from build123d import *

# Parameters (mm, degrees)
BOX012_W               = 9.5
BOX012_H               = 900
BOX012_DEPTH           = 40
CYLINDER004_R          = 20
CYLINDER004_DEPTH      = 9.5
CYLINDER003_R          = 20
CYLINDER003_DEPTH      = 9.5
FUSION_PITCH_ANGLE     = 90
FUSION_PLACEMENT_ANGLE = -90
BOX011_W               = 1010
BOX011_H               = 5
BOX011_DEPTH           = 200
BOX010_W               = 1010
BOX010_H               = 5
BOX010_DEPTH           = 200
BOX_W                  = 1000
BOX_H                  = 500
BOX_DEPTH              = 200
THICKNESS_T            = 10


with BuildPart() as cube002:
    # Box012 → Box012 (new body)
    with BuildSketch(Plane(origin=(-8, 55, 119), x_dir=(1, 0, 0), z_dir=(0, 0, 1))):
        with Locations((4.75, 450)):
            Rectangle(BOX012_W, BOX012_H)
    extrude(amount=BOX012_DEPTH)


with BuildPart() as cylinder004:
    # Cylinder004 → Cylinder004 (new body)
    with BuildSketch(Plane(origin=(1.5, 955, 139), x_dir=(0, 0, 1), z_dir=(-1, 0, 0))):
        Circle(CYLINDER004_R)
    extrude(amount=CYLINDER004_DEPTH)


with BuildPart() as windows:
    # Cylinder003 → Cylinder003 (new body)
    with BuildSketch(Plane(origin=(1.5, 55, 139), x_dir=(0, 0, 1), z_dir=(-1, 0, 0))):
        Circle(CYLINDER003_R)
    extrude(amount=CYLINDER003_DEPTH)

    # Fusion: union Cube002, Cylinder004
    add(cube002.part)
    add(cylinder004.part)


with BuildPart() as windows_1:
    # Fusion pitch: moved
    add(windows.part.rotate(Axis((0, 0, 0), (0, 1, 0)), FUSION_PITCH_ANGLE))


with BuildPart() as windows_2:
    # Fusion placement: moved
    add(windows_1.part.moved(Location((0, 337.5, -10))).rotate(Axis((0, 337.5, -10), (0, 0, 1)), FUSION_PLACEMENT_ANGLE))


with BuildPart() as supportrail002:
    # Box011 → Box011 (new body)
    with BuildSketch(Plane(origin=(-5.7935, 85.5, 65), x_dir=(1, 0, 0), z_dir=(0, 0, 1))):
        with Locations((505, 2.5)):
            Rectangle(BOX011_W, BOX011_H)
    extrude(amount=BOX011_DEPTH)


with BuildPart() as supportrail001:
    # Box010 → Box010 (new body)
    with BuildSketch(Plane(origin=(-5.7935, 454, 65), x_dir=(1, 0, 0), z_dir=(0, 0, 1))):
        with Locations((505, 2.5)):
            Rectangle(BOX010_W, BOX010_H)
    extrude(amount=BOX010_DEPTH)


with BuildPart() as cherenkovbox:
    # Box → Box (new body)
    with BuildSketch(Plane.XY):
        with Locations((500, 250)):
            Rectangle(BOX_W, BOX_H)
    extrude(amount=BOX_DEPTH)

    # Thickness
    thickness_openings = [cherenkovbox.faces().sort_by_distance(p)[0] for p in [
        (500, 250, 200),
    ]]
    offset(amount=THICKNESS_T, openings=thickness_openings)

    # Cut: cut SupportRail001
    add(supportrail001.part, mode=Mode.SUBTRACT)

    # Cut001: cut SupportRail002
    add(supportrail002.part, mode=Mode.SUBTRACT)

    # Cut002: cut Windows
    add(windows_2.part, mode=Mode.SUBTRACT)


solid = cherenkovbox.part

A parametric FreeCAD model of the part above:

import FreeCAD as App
import Part
import Sketcher

V = App.Vector
Q = App.Units.Quantity


def faces_at(feature, points):
    """Names of the faces that lie closest to the given points."""
    faces = feature.Shape.Faces
    near = lambda p: min(range(len(faces)), key=lambda i: faces[i].distToShape(Part.Vertex(*p))[0])
    return sorted({f"Face{near(p) + 1}" for p in points})

doc = App.newDocument("Part")
body = doc.addObject("PartDesign::Body", "Body")

# Sketch on XY plane
sketch1 = body.newObject("Sketcher::SketchObject", "Sketch")
sketch1.AttachmentSupport = (doc.getObject("XY_Plane"), [""])
sketch1.MapMode = "FlatFace"
sketch1.AttachmentOffset = App.Placement(V(0, 0, 119), App.Rotation())
sketch1.addGeometry(Part.LineSegment(V(-8, 955, 0), V(-8, 55, 0)), False)
sketch1.addGeometry(Part.LineSegment(V(-8, 55, 0), V(2, 55, 0)), False)
sketch1.addGeometry(Part.LineSegment(V(2, 55, 0), V(2, 955, 0)), False)
sketch1.addGeometry(Part.LineSegment(V(2, 955, 0), V(-8, 955, 0)), False)
sketch1.addConstraint(Sketcher.Constraint("Coincident", 0, 2, 1, 1))
sketch1.addConstraint(Sketcher.Constraint("Coincident", 1, 2, 2, 1))
sketch1.addConstraint(Sketcher.Constraint("Coincident", 2, 2, 3, 1))
sketch1.addConstraint(Sketcher.Constraint("Coincident", 3, 2, 0, 1))
sketch1.addConstraint(Sketcher.Constraint("Vertical", 0))
sketch1.addConstraint(Sketcher.Constraint("Horizontal", 1))
sketch1.addConstraint(Sketcher.Constraint("Vertical", 2))
sketch1.addConstraint(Sketcher.Constraint("Horizontal", 3))
sketch1.addConstraint(Sketcher.Constraint("DistanceY", 0, 2, 0, 1, Q("900 mm")))
sketch1.addConstraint(Sketcher.Constraint("DistanceX", 1, 1, 1, 2, Q("9.5 mm")))
sketch1.addConstraint(Sketcher.Constraint("DistanceX", 0, 2, -1, 1, Q("8 mm")))
sketch1.addConstraint(Sketcher.Constraint("DistanceY", -1, 1, 0, 2, Q("55 mm")))
pad1 = body.newObject("PartDesign::Pad", "Pad")
pad1.Profile = sketch1
pad1.Length = 40
body2 = doc.addObject("PartDesign::Body", "Body001")

# Sketch on YZ plane
sketch2 = body2.newObject("Sketcher::SketchObject", "Sketch001")
sketch2.AttachmentSupport = (doc.getObject("YZ_Plane001"), [""])
sketch2.MapMode = "FlatFace"
sketch2.AttachmentOffset = App.Placement(V(0, 0, 1.5), App.Rotation())
sketch2.addGeometry(Part.Circle(V(955, 139, 0), V(0, 0, 1), 20), False)
sketch2.addConstraint(Sketcher.Constraint("Diameter", 0, Q("40 mm")))
sketch2.addConstraint(Sketcher.Constraint("DistanceX", -1, 1, 0, 3, Q("955 mm")))
sketch2.addConstraint(Sketcher.Constraint("DistanceY", -1, 1, 0, 3, Q("139 mm")))
pad2 = body2.newObject("PartDesign::Pad", "Pad001")
pad2.Profile = sketch2
pad2.Length = 9.5
pad2.Reversed = True
body3 = doc.addObject("PartDesign::Body", "Body002")

# Sketch on YZ plane
sketch3 = body3.newObject("Sketcher::SketchObject", "Sketch002")
sketch3.AttachmentSupport = (doc.getObject("YZ_Plane002"), [""])
sketch3.MapMode = "FlatFace"
sketch3.AttachmentOffset = App.Placement(V(0, 0, 1.5), App.Rotation())
sketch3.addGeometry(Part.Circle(V(55, 139, 0), V(0, 0, 1), 20), False)
sketch3.addConstraint(Sketcher.Constraint("Diameter", 0, Q("40 mm")))
sketch3.addConstraint(Sketcher.Constraint("DistanceX", -1, 1, 0, 3, Q("55 mm")))
sketch3.addConstraint(Sketcher.Constraint("DistanceY", -1, 1, 0, 3, Q("139 mm")))
pad3 = body3.newObject("PartDesign::Pad", "Pad002")
pad3.Profile = sketch3
pad3.Length = 9.5
pad3.Reversed = True
doc.recompute()

boolean = body3.newObject("PartDesign::Boolean", "Boolean")
boolean.Type = "Fuse"
boolean.addObjects([body])
doc.recompute()

boolean2 = body3.newObject("PartDesign::Boolean", "Boolean001")
boolean2.Type = "Fuse"
boolean2.addObjects([body2])
body4 = doc.addObject("PartDesign::Body", "Body003")
doc.recompute()

body3.Placement = App.Placement(V(0, 0, 0), App.Rotation(V(0, 1, 0), 90))
boolean3 = body4.newObject("PartDesign::Boolean", "Boolean002")
boolean3.Type = "Fuse"
boolean3.addObjects([body3])
body5 = doc.addObject("PartDesign::Body", "Body004")
doc.recompute()

body4.Placement = App.Placement(V(0, 337.5, -10), App.Rotation(V(0, 0, 1), 270))
boolean4 = body5.newObject("PartDesign::Boolean", "Boolean003")
boolean4.Type = "Fuse"
boolean4.addObjects([body4])
body6 = doc.addObject("PartDesign::Body", "Body005")

# Sketch on XY plane
sketch4 = body6.newObject("Sketcher::SketchObject", "Sketch003")
sketch4.AttachmentSupport = (doc.getObject("XY_Plane005"), [""])
sketch4.MapMode = "FlatFace"
sketch4.AttachmentOffset = App.Placement(V(0, 0, 65), App.Rotation())
sketch4.addGeometry(Part.LineSegment(V(-6, 90, 0), V(-6, 86, 0)), False)
sketch4.addGeometry(Part.LineSegment(V(-6, 86, 0), V(1004, 86, 0)), False)
sketch4.addGeometry(Part.LineSegment(V(1004, 86, 0), V(1004, 90, 0)), False)
sketch4.addGeometry(Part.LineSegment(V(1004, 90, 0), V(-6, 90, 0)), False)
sketch4.addConstraint(Sketcher.Constraint("Coincident", 0, 2, 1, 1))
sketch4.addConstraint(Sketcher.Constraint("Coincident", 1, 2, 2, 1))
sketch4.addConstraint(Sketcher.Constraint("Coincident", 2, 2, 3, 1))
sketch4.addConstraint(Sketcher.Constraint("Coincident", 3, 2, 0, 1))
sketch4.addConstraint(Sketcher.Constraint("Vertical", 0))
sketch4.addConstraint(Sketcher.Constraint("Horizontal", 1))
sketch4.addConstraint(Sketcher.Constraint("Vertical", 2))
sketch4.addConstraint(Sketcher.Constraint("Horizontal", 3))
sketch4.addConstraint(Sketcher.Constraint("DistanceX", 1, 1, 1, 2, Q("1010 mm")))
sketch4.addConstraint(Sketcher.Constraint("DistanceY", 0, 2, 0, 1, Q("5 mm")))
sketch4.addConstraint(Sketcher.Constraint("DistanceY", -1, 1, 0, 2, Q("85.5 mm")))
sketch4.addConstraint(Sketcher.Constraint("DistanceX", 0, 2, -1, 1, Q("5.7935 mm")))
pad4 = body6.newObject("PartDesign::Pad", "Pad003")
pad4.Profile = sketch4
pad4.Length = 200
body7 = doc.addObject("PartDesign::Body", "Body006")

# Sketch on XY plane
sketch5 = body7.newObject("Sketcher::SketchObject", "Sketch004")
sketch5.AttachmentSupport = (doc.getObject("XY_Plane006"), [""])
sketch5.MapMode = "FlatFace"
sketch5.AttachmentOffset = App.Placement(V(0, 0, 65), App.Rotation())
sketch5.addGeometry(Part.LineSegment(V(-6, 459, 0), V(-6, 454, 0)), False)
sketch5.addGeometry(Part.LineSegment(V(-6, 454, 0), V(1004, 454, 0)), False)
sketch5.addGeometry(Part.LineSegment(V(1004, 454, 0), V(1004, 459, 0)), False)
sketch5.addGeometry(Part.LineSegment(V(1004, 459, 0), V(-6, 459, 0)), False)
sketch5.addConstraint(Sketcher.Constraint("Coincident", 0, 2, 1, 1))
sketch5.addConstraint(Sketcher.Constraint("Coincident", 1, 2, 2, 1))
sketch5.addConstraint(Sketcher.Constraint("Coincident", 2, 2, 3, 1))
sketch5.addConstraint(Sketcher.Constraint("Coincident", 3, 2, 0, 1))
sketch5.addConstraint(Sketcher.Constraint("Vertical", 0))
sketch5.addConstraint(Sketcher.Constraint("Horizontal", 1))
sketch5.addConstraint(Sketcher.Constraint("Vertical", 2))
sketch5.addConstraint(Sketcher.Constraint("Horizontal", 3))
sketch5.addConstraint(Sketcher.Constraint("DistanceX", 1, 1, 1, 2, Q("1010 mm")))
sketch5.addConstraint(Sketcher.Constraint("DistanceY", 0, 2, 0, 1, Q("5 mm")))
sketch5.addConstraint(Sketcher.Constraint("DistanceY", -1, 1, 0, 2, Q("454 mm")))
sketch5.addConstraint(Sketcher.Constraint("DistanceX", 0, 2, -1, 1, Q("5.7935 mm")))
pad5 = body7.newObject("PartDesign::Pad", "Pad004")
pad5.Profile = sketch5
pad5.Length = 200
body8 = doc.addObject("PartDesign::Body", "Body007")

# Sketch on XY plane
sketch6 = body8.newObject("Sketcher::SketchObject", "Sketch005")
sketch6.AttachmentSupport = (doc.getObject("XY_Plane007"), [""])
sketch6.MapMode = "FlatFace"
sketch6.addGeometry(Part.LineSegment(V(0, 500, 0), V(0, 0, 0)), False)
sketch6.addGeometry(Part.LineSegment(V(0, 0, 0), V(1000, 0, 0)), False)
sketch6.addGeometry(Part.LineSegment(V(1000, 0, 0), V(1000, 500, 0)), False)
sketch6.addGeometry(Part.LineSegment(V(1000, 500, 0), V(0, 500, 0)), False)
sketch6.addConstraint(Sketcher.Constraint("Coincident", 0, 2, 1, 1))
sketch6.addConstraint(Sketcher.Constraint("Coincident", 1, 2, 2, 1))
sketch6.addConstraint(Sketcher.Constraint("Coincident", 2, 2, 3, 1))
sketch6.addConstraint(Sketcher.Constraint("Coincident", 3, 2, 0, 1))
sketch6.addConstraint(Sketcher.Constraint("Vertical", 0))
sketch6.addConstraint(Sketcher.Constraint("Horizontal", 1))
sketch6.addConstraint(Sketcher.Constraint("Vertical", 2))
sketch6.addConstraint(Sketcher.Constraint("Horizontal", 3))
sketch6.addConstraint(Sketcher.Constraint("Coincident", 0, 2, -1, 1))
sketch6.addConstraint(Sketcher.Constraint("DistanceX", 1, 1, 1, 2, Q("1000 mm")))
sketch6.addConstraint(Sketcher.Constraint("DistanceY", 0, 2, 0, 1, Q("500 mm")))
pad6 = body8.newObject("PartDesign::Pad", "Pad005")
pad6.Profile = sketch6
pad6.Length = 200
doc.recompute()

thickness = body8.newObject("PartDesign::Thickness", "Thickness")
thickness.Base = (pad6, faces_at(pad6, [(500, 250, 200)]))
thickness.Value = 10
thickness.Reversed = False
thickness.Join = "Arc"
doc.recompute()

boolean5 = body8.newObject("PartDesign::Boolean", "Boolean004")
boolean5.Type = "Cut"
boolean5.addObjects([body7])
doc.recompute()

boolean6 = body8.newObject("PartDesign::Boolean", "Boolean005")
boolean6.Type = "Cut"
boolean6.addObjects([body6])
doc.recompute()

boolean7 = body8.newObject("PartDesign::Boolean", "Boolean006")
boolean7.Type = "Cut"
boolean7.addObjects([body5])

doc.recompute()
